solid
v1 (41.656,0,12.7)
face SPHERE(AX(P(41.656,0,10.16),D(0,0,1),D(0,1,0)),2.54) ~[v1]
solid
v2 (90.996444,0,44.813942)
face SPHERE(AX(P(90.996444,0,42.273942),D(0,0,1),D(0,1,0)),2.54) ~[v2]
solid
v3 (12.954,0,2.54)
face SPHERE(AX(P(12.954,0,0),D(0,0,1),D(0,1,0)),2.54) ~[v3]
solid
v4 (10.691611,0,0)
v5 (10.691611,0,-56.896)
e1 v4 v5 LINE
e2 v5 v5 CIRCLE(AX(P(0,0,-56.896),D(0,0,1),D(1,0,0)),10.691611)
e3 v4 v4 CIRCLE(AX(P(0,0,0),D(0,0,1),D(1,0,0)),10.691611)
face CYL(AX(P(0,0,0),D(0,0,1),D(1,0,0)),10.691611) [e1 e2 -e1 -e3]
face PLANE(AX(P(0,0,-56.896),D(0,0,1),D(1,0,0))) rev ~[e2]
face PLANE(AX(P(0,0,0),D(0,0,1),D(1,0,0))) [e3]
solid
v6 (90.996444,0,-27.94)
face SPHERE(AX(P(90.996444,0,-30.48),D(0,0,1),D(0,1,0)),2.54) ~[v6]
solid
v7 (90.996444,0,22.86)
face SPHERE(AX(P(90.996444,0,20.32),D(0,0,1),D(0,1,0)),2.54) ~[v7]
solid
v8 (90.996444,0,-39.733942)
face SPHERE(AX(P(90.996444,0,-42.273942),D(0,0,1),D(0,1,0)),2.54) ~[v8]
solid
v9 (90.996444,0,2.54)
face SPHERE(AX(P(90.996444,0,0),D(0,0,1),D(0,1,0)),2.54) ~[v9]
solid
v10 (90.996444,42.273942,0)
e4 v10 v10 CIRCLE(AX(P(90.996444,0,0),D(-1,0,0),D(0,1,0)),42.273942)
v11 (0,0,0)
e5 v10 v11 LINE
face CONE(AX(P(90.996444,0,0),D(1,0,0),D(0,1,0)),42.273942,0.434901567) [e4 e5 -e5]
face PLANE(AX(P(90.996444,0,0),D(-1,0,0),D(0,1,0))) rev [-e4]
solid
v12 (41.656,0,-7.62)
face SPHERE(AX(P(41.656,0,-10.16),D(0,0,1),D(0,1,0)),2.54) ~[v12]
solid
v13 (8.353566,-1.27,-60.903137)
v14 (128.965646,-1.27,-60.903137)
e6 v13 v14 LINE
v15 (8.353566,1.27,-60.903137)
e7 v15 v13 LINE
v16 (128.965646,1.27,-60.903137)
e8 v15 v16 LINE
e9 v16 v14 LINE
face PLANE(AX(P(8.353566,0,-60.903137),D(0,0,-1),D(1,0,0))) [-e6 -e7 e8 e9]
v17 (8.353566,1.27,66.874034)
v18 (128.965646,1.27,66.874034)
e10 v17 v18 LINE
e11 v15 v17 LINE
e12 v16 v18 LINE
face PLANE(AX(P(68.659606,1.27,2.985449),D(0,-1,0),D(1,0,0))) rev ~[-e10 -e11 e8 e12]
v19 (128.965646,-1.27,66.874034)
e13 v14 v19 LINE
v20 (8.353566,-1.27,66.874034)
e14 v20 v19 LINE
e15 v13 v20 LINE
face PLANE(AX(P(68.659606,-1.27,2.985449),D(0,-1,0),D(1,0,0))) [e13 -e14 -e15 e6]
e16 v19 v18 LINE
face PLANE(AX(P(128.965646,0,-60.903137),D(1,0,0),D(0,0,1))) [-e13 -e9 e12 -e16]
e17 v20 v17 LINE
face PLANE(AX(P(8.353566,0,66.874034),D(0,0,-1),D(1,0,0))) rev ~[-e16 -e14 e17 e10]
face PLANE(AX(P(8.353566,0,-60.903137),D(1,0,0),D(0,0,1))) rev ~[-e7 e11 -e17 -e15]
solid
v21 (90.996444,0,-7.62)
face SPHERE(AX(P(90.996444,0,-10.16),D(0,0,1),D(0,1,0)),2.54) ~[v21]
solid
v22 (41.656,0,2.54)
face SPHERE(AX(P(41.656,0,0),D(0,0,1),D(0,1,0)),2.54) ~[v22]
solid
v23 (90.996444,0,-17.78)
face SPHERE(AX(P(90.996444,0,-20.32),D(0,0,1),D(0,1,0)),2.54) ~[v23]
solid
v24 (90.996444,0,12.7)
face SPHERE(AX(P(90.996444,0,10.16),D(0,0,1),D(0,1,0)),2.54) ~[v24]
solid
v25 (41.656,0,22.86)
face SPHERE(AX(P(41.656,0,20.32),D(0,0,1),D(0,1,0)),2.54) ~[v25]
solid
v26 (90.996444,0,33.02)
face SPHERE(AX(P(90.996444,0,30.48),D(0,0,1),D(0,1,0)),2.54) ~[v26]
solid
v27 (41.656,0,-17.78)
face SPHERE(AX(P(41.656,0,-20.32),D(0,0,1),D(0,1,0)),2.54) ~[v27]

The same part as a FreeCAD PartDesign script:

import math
import FreeCAD as App
import Part
import Sketcher
from FreeCAD import Vector
Q = App.Units.Quantity

doc = App.newDocument("Part")
body = doc.addObject("PartDesign::Body", "Body")

# Sketch on XY plane
sketch1 = body.newObject("Sketcher::SketchObject", "Sketch")
sketch1.AttachmentSupport = (doc.getObject("XY_Plane"), [""])
sketch1.MapMode = "FlatFace"
sketch1.addGeometry([
    Part.LineSegment(Vector(91, 42, 0), Vector(0, 0, 0)),
    Part.LineSegment(Vector(0, 0, 0), Vector(91, 0, 0)),
    Part.LineSegment(Vector(91, 0, 0), Vector(91, 42, 0)),
], False)
sketch1.addConstraint([
    Sketcher.Constraint("Coincident", 0, 2, 1, 1),
    Sketcher.Constraint("Coincident", 1, 2, 2, 1),
    Sketcher.Constraint("Coincident", 2, 2, 0, 1),
    Sketcher.Constraint("Horizontal", 1),
    Sketcher.Constraint("Vertical", 2),
    Sketcher.Constraint("Coincident", 0, 2, -1, 1),
    Sketcher.Constraint("DistanceY", 2, 1, 2, 2, Q("42.273942 mm")),
    Sketcher.Constraint("Distance", 0, Q("100.336628 mm")),
])
revolution = body.newObject("PartDesign::Revolution", "Revolution")
revolution.Profile = sketch1
revolution.ReferenceAxis = (sketch1, ["H_Axis"])
revolution.Angle = 360
body2 = doc.addObject("PartDesign::Body", "Body001")

# Sketch on XY plane
sketch2 = body2.newObject("Sketcher::SketchObject", "Sketch001")
sketch2.AttachmentSupport = (doc.getObject("XY_Plane001"), [""])
sketch2.MapMode = "FlatFace"
sketch2.addGeometry(Part.Circle(Vector(0, 0, 0), Vector(0, 0, 1), 11), False)
sketch2.addConstraint([
    Sketcher.Constraint("Coincident", 0, 3, -1, 1),
    Sketcher.Constraint("Diameter", 0, Q("21.383222 mm")),
])
pad1 = body2.newObject("PartDesign::Pad", "Pad")
pad1.Profile = sketch2
pad1.Length = Q("2.24 in")
pad1.Reversed = True
body3 = doc.addObject("PartDesign::Body", "Body002")

# Sketch on XZ plane
sketch3 = body3.newObject("Sketcher::SketchObject", "Sketch002")
sketch3.AttachmentSupport = (doc.getObject("XZ_Plane002"), [""])
sketch3.MapMode = "FlatFace"
sketch3.addGeometry([
    Part.LineSegment(Vector(8, 67, 0), Vector(8, -61, 0)),
    Part.LineSegment(Vector(8, -61, 0), Vector(129, -61, 0)),
    Part.LineSegment(Vector(129, -61, 0), Vector(129, 67, 0)),
    Part.LineSegment(Vector(129, 67, 0), Vector(8, 67, 0)),
], False)
sketch3.addConstraint([
    Sketcher.Constraint("Coincident", 0, 2, 1, 1),
    Sketcher.Constraint("Coincident", 1, 2, 2, 1),
    Sketcher.Constraint("Coincident", 2, 2, 3, 1),
    Sketcher.Constraint("Coincident", 3, 2, 0, 1),
    Sketcher.Constraint("Vertical", 0),
    Sketcher.Constraint("Horizontal", 1),
    Sketcher.Constraint("Vertical", 2),
    Sketcher.Constraint("Horizontal", 3),
    Sketcher.Constraint("DistanceX", 1, 1, 1, 2, Q("120.61208 mm")),
    Sketcher.Constraint("DistanceY", 0, 2, 0, 1, Q("127.777171 mm")),
    Sketcher.Constraint("DistanceX", -1, 1, 0, 2, Q("8.353566 mm")),
    Sketcher.Constraint("DistanceY", 0, 2, -1, 1, Q("60.903137 mm")),
])
pad2 = body3.newObject("PartDesign::Pad", "Pad001")
pad2.Profile = sketch3
pad2.Type = "TwoLengths"
pad2.Length = Q("0.05 in")
pad2.Length2 = Q("0.05 in")
body4 = doc.addObject("PartDesign::Body", "Body003")
body4.AllowCompound = True

# Sketch on YZ plane
sketch4 = body4.newObject("Sketcher::SketchObject", "Sketch003")
sketch4.AttachmentSupport = (doc.getObject("YZ_Plane003"), [""])
sketch4.MapMode = "FlatFace"
sketch4.AttachmentOffset = App.Placement(Vector(0, 0, 90.996444), App.Rotation())
sketch4.addGeometry([
    Part.LineSegment(Vector(0, 44.8, 0), Vector(0, 39.7, 0)),  # 0
    Part.ArcOfCircle(Part.Circle(Vector(0, 42.3, 0), Vector(0, 0, 1), 2.5), math.radians(-90), math.radians(90)),  # 1
    Part.LineSegment(Vector(0, 33, 0), Vector(0, 27.9, 0)),  # 2
    Part.ArcOfCircle(Part.Circle(Vector(0, 30.5, 0), Vector(0, 0, 1), 2.5), math.radians(-90), math.radians(90)),  # 3
    Part.LineSegment(Vector(0, 22.9, 0), Vector(0, 17.8, 0)),  # 4
    Part.ArcOfCircle(Part.Circle(Vector(0, 20.3, 0), Vector(0, 0, 1), 2.5), math.radians(-90), math.radians(90)),  # 5
    Part.LineSegment(Vector(0, 12.7, 0), Vector(0, 7.6, 0)),  # 6
    Part.ArcOfCircle(Part.Circle(Vector(0, 10.2, 0), Vector(0, 0, 1), 2.5), math.radians(-90), math.radians(90)),  # 7
    Part.LineSegment(Vector(0, 2.5, 0), Vector(0, -2.5, 0)),  # 8
    Part.ArcOfCircle(Part.Circle(Vector(0, 0, 0), Vector(0, 0, 1), 2.5), math.radians(-90), math.radians(90)),  # 9
    Part.ArcOfCircle(Part.Circle(Vector(0, -42.3, 0), Vector(0, 0, 1), 2.5), math.radians(-90), math.radians(90)),  # 10
    Part.LineSegment(Vector(0, -39.7, 0), Vector(0, -44.8, 0)),  # 11
    Part.ArcOfCircle(Part.Circle(Vector(0, -30.5, 0), Vector(0, 0, 1), 2.5), math.radians(-90), math.radians(90)),  # 12
    Part.LineSegment(Vector(0, -27.9, 0), Vector(0, -33, 0)),  # 13
    Part.ArcOfCircle(Part.Circle(Vector(0, -20.3, 0), Vector(0, 0, 1), 2.5), math.radians(-90), math.radians(90)),  # 14
    Part.LineSegment(Vector(0, -17.8, 0), Vector(0, -22.9, 0)),  # 15
    Part.ArcOfCircle(Part.Circle(Vector(0, -10.2, 0), Vector(0, 0, 1), 2.5), math.radians(-90), math.radians(90)),  # 16
    Part.LineSegment(Vector(0, -7.6, 0), Vector(0, -12.7, 0)),  # 17
], False)
sketch4.addConstraint([
    Sketcher.Constraint("Coincident", 0, 1, 1, 2),
    Sketcher.Constraint("Coincident", 1, 1, 0, 2),
    Sketcher.Constraint("Coincident", 2, 1, 3, 2),
    Sketcher.Constraint("Coincident", 3, 1, 2, 2),
    Sketcher.Constraint("Coincident", 4, 1, 5, 2),
    Sketcher.Constraint("Coincident", 5, 1, 4, 2),
    Sketcher.Constraint("Coincident", 6, 1, 7, 2),
    Sketcher.Constraint("Coincident", 7, 1, 6, 2),
    Sketcher.Constraint("Coincident", 8, 1, 9, 2),
    Sketcher.Constraint("Coincident", 9, 1, 8, 2),
    Sketcher.Constraint("Coincident", 10, 1, 11, 2),
    Sketcher.Constraint("Coincident", 11, 1, 10, 2),
    Sketcher.Constraint("Coincident", 12, 1, 13, 2),
    Sketcher.Constraint("Coincident", 13, 1, 12, 2),
    Sketcher.Constraint("Coincident", 14, 1, 15, 2),
    Sketcher.Constraint("Coincident", 15, 1, 14, 2),
    Sketcher.Constraint("Coincident", 16, 1, 17, 2),
    Sketcher.Constraint("Coincident", 17, 1, 16, 2),
    Sketcher.Constraint("Vertical", 0),
    Sketcher.Constraint("Vertical", 2),
    Sketcher.Constraint("Vertical", 4),
    Sketcher.Constraint("Vertical", 6),
    Sketcher.Constraint("Vertical", 8),
    Sketcher.Constraint("Vertical", 11),
    Sketcher.Constraint("Vertical", 13),
    Sketcher.Constraint("Vertical", 15),
    Sketcher.Constraint("Vertical", 17),
    Sketcher.Constraint("Coincident", 9, 3, -1, 1),
    Sketcher.Constraint("Equal", 1, 3),
    Sketcher.Constraint("Equal", 3, 5),
    Sketcher.Constraint("Equal", 5, 7),
    Sketcher.Constraint("Equal", 7, 9),
    Sketcher.Constraint("Equal", 9, 10),
    Sketcher.Constraint("Equal", 10, 12),
    Sketcher.Constraint("Equal", 12, 14),
    Sketcher.Constraint("Equal", 14, 16),
    Sketcher.Constraint("Symmetric", 1, 3, 10, 3, -1, 1),
    Sketcher.Constraint("Symmetric", 3, 3, 12, 3, -1, 1),
    Sketcher.Constraint("Symmetric", 5, 3, 14, 3, -1, 1),
    Sketcher.Constraint("Symmetric", 7, 3, 16, 3, -1, 1),
    Sketcher.Constraint("PointOnObject", 1, 3, -2),
    Sketcher.Constraint("PointOnObject", 3, 3, -2),
    Sketcher.Constraint("PointOnObject", 5, 3, -2),
    Sketcher.Constraint("PointOnObject", 7, 3, -2),
    Sketcher.Constraint("PointOnObject", 0, 1, -2),
    Sketcher.Constraint("PointOnObject", 2, 1, -2),
    Sketcher.Constraint("PointOnObject", 4, 1, -2),
    Sketcher.Constraint("PointOnObject", 6, 1, -2),
    Sketcher.Constraint("PointOnObject", 8, 1, -2),
    Sketcher.Constraint("PointOnObject", 10, 1, -2),
    Sketcher.Constraint("PointOnObject", 12, 1, -2),
    Sketcher.Constraint("PointOnObject", 14, 1, -2),
    Sketcher.Constraint("PointOnObject", 16, 1, -2),
    Sketcher.Constraint("Radius", 1, Q("0.1 in")),
    Sketcher.Constraint("DistanceY", 12, 3, 5, 3, Q("2 in")),
    Sketcher.Constraint("DistanceY", -1, 1, 3, 3, Q("1.2 in")),
    Sketcher.Constraint("DistanceY", -1, 1, 7, 3, Q("0.4 in")),
    Sketcher.Constraint("DistanceY", -1, 1, 1, 3, Q("42.273942 mm")),
])
revolution2 = body4.newObject("PartDesign::Revolution", "Revolution001")
revolution2.Profile = sketch4
revolution2.ReferenceAxis = (sketch4, ["V_Axis"])
revolution2.Angle = 360
body5 = doc.addObject("PartDesign::Body", "Body004")
body5.AllowCompound = True

# Sketch on YZ plane
sketch5 = body5.newObject("Sketcher::SketchObject", "Sketch004")
sketch5.AttachmentSupport = (doc.getObject("YZ_Plane004"), [""])
sketch5.MapMode = "FlatFace"
sketch5.AttachmentOffset = App.Placement(Vector(0, 0, 1.64 * 25.4), App.Rotation())
sketch5.addGeometry([
    Part.LineSegment(Vector(0, 22.9, 0), Vector(0, 17.8, 0)),  # 0
    Part.ArcOfCircle(Part.Circle(Vector(0, 20.3, 0), Vector(0, 0, 1), 2.5), math.radians(-90), math.radians(90)),  # 1
    Part.LineSegment(Vector(0, 12.7, 0), Vector(0, 7.6, 0)),  # 2
    Part.ArcOfCircle(Part.Circle(Vector(0, 10.2, 0), Vector(0, 0, 1), 2.5), math.radians(-90), math.radians(90)),  # 3
    Part.LineSegment(Vector(0, 2.5, 0), Vector(0, -2.5, 0)),  # 4
    Part.ArcOfCircle(Part.Circle(Vector(0, 0, 0), Vector(0, 0, 1), 2.5), math.radians(-90), math.radians(90)),  # 5
    Part.LineSegment(Vector(0, -7.6, 0), Vector(0, -12.7, 0)),  # 6
    Part.ArcOfCircle(Part.Circle(Vector(0, -10.2, 0), Vector(0, 0, 1), 2.5), math.radians(-90), math.radians(90)),  # 7
    Part.LineSegment(Vector(0, -17.8, 0), Vector(0, -22.9, 0)),  # 8
    Part.ArcOfCircle(Part.Circle(Vector(0, -20.3, 0), Vector(0, 0, 1), 2.5), math.radians(-90), math.radians(90)),  # 9
], False)
sketch5.addConstraint([
    Sketcher.Constraint("Coincident", 0, 1, 1, 2),
    Sketcher.Constraint("Coincident", 1, 1, 0, 2),
    Sketcher.Constraint("Coincident", 2, 1, 3, 2),
    Sketcher.Constraint("Coincident", 3, 1, 2, 2),
    Sketcher.Constraint("Coincident", 4, 1, 5, 2),
    Sketcher.Constraint("Coincident", 5, 1, 4, 2),
    Sketcher.Constraint("Coincident", 6, 1, 7, 2),
    Sketcher.Constraint("Coincident", 7, 1, 6, 2),
    Sketcher.Constraint("Coincident", 8, 1, 9, 2),
    Sketcher.Constraint("Coincident", 9, 1, 8, 2),
    Sketcher.Constraint("Vertical", 0),
    Sketcher.Constraint("Vertical", 2),
    Sketcher.Constraint("Vertical", 4),
    Sketcher.Constraint("Vertical", 6),
    Sketcher.Constraint("Vertical", 8),
    Sketcher.Constraint("Coincident", 5, 3, -1, 1),
    Sketcher.Constraint("Equal", 1, 3),
    Sketcher.Constraint("Equal", 3, 5),
    Sketcher.Constraint("Equal", 5, 7),
    Sketcher.Constraint("Equal", 7, 9),
    Sketcher.Constraint("Symmetric", 3, 3, 7, 3, -1, 1),
    Sketcher.Constraint("Symmetric", 1, 3, 9, 3, -1, 1),
    Sketcher.Constraint("PointOnObject", 1, 3, -2),
    Sketcher.Constraint("PointOnObject", 3, 3, -2),
    Sketcher.Constraint("PointOnObject", 0, 1, -2),
    Sketcher.Constraint("PointOnObject", 2, 1, -2),
    Sketcher.Constraint("PointOnObject", 4, 1, -2),
    Sketcher.Constraint("PointOnObject", 6, 1, -2),
    Sketcher.Constraint("PointOnObject", 8, 1, -2),
    Sketcher.Constraint("Radius", 1, Q("0.1 in")),
    Sketcher.Constraint("DistanceY", -1, 1, 1, 3, Q("0.8 in")),
    Sketcher.Constraint("DistanceY", -1, 1, 3, 3, Q("0.4 in")),
])
revolution3 = body5.newObject("PartDesign::Revolution", "Revolution002")
revolution3.Profile = sketch5
revolution3.ReferenceAxis = (sketch5, ["V_Axis"])
revolution3.Angle = 360
body6 = doc.addObject("PartDesign::Body", "Body005")

# Sketch on YZ plane
sketch6 = body6.newObject("Sketcher::SketchObject", "Sketch005")
sketch6.AttachmentSupport = (doc.getObject("YZ_Plane005"), [""])
sketch6.MapMode = "FlatFace"
sketch6.AttachmentOffset = App.Placement(Vector(0, 0, 0.51 * 25.4), App.Rotation())
sketch6.addGeometry([
    Part.LineSegment(Vector(0, 2.5, 0), Vector(0, -2.5, 0)),
    Part.ArcOfCircle(Part.Circle(Vector(0, 0, 0), Vector(0, 0, 1), 2.5), math.radians(-90), math.radians(90)),
], False)
sketch6.addConstraint([
    Sketcher.Constraint("Coincident", 0, 1, 1, 2),
    Sketcher.Constraint("Coincident", 1, 1, 0, 2),
    Sketcher.Constraint("Vertical", 0),
    Sketcher.Constraint("Coincident", 1, 3, -1, 1),
    Sketcher.Constraint("PointOnObject", 0, 1, -2),
    Sketcher.Constraint("Radius", 1, Q("0.1 in")),
])
revolution4 = body6.newObject("PartDesign::Revolution", "Revolution003")
revolution4.Profile = sketch6
revolution4.ReferenceAxis = (sketch6, ["V_Axis"])
revolution4.Angle = 360

doc.recompute()
